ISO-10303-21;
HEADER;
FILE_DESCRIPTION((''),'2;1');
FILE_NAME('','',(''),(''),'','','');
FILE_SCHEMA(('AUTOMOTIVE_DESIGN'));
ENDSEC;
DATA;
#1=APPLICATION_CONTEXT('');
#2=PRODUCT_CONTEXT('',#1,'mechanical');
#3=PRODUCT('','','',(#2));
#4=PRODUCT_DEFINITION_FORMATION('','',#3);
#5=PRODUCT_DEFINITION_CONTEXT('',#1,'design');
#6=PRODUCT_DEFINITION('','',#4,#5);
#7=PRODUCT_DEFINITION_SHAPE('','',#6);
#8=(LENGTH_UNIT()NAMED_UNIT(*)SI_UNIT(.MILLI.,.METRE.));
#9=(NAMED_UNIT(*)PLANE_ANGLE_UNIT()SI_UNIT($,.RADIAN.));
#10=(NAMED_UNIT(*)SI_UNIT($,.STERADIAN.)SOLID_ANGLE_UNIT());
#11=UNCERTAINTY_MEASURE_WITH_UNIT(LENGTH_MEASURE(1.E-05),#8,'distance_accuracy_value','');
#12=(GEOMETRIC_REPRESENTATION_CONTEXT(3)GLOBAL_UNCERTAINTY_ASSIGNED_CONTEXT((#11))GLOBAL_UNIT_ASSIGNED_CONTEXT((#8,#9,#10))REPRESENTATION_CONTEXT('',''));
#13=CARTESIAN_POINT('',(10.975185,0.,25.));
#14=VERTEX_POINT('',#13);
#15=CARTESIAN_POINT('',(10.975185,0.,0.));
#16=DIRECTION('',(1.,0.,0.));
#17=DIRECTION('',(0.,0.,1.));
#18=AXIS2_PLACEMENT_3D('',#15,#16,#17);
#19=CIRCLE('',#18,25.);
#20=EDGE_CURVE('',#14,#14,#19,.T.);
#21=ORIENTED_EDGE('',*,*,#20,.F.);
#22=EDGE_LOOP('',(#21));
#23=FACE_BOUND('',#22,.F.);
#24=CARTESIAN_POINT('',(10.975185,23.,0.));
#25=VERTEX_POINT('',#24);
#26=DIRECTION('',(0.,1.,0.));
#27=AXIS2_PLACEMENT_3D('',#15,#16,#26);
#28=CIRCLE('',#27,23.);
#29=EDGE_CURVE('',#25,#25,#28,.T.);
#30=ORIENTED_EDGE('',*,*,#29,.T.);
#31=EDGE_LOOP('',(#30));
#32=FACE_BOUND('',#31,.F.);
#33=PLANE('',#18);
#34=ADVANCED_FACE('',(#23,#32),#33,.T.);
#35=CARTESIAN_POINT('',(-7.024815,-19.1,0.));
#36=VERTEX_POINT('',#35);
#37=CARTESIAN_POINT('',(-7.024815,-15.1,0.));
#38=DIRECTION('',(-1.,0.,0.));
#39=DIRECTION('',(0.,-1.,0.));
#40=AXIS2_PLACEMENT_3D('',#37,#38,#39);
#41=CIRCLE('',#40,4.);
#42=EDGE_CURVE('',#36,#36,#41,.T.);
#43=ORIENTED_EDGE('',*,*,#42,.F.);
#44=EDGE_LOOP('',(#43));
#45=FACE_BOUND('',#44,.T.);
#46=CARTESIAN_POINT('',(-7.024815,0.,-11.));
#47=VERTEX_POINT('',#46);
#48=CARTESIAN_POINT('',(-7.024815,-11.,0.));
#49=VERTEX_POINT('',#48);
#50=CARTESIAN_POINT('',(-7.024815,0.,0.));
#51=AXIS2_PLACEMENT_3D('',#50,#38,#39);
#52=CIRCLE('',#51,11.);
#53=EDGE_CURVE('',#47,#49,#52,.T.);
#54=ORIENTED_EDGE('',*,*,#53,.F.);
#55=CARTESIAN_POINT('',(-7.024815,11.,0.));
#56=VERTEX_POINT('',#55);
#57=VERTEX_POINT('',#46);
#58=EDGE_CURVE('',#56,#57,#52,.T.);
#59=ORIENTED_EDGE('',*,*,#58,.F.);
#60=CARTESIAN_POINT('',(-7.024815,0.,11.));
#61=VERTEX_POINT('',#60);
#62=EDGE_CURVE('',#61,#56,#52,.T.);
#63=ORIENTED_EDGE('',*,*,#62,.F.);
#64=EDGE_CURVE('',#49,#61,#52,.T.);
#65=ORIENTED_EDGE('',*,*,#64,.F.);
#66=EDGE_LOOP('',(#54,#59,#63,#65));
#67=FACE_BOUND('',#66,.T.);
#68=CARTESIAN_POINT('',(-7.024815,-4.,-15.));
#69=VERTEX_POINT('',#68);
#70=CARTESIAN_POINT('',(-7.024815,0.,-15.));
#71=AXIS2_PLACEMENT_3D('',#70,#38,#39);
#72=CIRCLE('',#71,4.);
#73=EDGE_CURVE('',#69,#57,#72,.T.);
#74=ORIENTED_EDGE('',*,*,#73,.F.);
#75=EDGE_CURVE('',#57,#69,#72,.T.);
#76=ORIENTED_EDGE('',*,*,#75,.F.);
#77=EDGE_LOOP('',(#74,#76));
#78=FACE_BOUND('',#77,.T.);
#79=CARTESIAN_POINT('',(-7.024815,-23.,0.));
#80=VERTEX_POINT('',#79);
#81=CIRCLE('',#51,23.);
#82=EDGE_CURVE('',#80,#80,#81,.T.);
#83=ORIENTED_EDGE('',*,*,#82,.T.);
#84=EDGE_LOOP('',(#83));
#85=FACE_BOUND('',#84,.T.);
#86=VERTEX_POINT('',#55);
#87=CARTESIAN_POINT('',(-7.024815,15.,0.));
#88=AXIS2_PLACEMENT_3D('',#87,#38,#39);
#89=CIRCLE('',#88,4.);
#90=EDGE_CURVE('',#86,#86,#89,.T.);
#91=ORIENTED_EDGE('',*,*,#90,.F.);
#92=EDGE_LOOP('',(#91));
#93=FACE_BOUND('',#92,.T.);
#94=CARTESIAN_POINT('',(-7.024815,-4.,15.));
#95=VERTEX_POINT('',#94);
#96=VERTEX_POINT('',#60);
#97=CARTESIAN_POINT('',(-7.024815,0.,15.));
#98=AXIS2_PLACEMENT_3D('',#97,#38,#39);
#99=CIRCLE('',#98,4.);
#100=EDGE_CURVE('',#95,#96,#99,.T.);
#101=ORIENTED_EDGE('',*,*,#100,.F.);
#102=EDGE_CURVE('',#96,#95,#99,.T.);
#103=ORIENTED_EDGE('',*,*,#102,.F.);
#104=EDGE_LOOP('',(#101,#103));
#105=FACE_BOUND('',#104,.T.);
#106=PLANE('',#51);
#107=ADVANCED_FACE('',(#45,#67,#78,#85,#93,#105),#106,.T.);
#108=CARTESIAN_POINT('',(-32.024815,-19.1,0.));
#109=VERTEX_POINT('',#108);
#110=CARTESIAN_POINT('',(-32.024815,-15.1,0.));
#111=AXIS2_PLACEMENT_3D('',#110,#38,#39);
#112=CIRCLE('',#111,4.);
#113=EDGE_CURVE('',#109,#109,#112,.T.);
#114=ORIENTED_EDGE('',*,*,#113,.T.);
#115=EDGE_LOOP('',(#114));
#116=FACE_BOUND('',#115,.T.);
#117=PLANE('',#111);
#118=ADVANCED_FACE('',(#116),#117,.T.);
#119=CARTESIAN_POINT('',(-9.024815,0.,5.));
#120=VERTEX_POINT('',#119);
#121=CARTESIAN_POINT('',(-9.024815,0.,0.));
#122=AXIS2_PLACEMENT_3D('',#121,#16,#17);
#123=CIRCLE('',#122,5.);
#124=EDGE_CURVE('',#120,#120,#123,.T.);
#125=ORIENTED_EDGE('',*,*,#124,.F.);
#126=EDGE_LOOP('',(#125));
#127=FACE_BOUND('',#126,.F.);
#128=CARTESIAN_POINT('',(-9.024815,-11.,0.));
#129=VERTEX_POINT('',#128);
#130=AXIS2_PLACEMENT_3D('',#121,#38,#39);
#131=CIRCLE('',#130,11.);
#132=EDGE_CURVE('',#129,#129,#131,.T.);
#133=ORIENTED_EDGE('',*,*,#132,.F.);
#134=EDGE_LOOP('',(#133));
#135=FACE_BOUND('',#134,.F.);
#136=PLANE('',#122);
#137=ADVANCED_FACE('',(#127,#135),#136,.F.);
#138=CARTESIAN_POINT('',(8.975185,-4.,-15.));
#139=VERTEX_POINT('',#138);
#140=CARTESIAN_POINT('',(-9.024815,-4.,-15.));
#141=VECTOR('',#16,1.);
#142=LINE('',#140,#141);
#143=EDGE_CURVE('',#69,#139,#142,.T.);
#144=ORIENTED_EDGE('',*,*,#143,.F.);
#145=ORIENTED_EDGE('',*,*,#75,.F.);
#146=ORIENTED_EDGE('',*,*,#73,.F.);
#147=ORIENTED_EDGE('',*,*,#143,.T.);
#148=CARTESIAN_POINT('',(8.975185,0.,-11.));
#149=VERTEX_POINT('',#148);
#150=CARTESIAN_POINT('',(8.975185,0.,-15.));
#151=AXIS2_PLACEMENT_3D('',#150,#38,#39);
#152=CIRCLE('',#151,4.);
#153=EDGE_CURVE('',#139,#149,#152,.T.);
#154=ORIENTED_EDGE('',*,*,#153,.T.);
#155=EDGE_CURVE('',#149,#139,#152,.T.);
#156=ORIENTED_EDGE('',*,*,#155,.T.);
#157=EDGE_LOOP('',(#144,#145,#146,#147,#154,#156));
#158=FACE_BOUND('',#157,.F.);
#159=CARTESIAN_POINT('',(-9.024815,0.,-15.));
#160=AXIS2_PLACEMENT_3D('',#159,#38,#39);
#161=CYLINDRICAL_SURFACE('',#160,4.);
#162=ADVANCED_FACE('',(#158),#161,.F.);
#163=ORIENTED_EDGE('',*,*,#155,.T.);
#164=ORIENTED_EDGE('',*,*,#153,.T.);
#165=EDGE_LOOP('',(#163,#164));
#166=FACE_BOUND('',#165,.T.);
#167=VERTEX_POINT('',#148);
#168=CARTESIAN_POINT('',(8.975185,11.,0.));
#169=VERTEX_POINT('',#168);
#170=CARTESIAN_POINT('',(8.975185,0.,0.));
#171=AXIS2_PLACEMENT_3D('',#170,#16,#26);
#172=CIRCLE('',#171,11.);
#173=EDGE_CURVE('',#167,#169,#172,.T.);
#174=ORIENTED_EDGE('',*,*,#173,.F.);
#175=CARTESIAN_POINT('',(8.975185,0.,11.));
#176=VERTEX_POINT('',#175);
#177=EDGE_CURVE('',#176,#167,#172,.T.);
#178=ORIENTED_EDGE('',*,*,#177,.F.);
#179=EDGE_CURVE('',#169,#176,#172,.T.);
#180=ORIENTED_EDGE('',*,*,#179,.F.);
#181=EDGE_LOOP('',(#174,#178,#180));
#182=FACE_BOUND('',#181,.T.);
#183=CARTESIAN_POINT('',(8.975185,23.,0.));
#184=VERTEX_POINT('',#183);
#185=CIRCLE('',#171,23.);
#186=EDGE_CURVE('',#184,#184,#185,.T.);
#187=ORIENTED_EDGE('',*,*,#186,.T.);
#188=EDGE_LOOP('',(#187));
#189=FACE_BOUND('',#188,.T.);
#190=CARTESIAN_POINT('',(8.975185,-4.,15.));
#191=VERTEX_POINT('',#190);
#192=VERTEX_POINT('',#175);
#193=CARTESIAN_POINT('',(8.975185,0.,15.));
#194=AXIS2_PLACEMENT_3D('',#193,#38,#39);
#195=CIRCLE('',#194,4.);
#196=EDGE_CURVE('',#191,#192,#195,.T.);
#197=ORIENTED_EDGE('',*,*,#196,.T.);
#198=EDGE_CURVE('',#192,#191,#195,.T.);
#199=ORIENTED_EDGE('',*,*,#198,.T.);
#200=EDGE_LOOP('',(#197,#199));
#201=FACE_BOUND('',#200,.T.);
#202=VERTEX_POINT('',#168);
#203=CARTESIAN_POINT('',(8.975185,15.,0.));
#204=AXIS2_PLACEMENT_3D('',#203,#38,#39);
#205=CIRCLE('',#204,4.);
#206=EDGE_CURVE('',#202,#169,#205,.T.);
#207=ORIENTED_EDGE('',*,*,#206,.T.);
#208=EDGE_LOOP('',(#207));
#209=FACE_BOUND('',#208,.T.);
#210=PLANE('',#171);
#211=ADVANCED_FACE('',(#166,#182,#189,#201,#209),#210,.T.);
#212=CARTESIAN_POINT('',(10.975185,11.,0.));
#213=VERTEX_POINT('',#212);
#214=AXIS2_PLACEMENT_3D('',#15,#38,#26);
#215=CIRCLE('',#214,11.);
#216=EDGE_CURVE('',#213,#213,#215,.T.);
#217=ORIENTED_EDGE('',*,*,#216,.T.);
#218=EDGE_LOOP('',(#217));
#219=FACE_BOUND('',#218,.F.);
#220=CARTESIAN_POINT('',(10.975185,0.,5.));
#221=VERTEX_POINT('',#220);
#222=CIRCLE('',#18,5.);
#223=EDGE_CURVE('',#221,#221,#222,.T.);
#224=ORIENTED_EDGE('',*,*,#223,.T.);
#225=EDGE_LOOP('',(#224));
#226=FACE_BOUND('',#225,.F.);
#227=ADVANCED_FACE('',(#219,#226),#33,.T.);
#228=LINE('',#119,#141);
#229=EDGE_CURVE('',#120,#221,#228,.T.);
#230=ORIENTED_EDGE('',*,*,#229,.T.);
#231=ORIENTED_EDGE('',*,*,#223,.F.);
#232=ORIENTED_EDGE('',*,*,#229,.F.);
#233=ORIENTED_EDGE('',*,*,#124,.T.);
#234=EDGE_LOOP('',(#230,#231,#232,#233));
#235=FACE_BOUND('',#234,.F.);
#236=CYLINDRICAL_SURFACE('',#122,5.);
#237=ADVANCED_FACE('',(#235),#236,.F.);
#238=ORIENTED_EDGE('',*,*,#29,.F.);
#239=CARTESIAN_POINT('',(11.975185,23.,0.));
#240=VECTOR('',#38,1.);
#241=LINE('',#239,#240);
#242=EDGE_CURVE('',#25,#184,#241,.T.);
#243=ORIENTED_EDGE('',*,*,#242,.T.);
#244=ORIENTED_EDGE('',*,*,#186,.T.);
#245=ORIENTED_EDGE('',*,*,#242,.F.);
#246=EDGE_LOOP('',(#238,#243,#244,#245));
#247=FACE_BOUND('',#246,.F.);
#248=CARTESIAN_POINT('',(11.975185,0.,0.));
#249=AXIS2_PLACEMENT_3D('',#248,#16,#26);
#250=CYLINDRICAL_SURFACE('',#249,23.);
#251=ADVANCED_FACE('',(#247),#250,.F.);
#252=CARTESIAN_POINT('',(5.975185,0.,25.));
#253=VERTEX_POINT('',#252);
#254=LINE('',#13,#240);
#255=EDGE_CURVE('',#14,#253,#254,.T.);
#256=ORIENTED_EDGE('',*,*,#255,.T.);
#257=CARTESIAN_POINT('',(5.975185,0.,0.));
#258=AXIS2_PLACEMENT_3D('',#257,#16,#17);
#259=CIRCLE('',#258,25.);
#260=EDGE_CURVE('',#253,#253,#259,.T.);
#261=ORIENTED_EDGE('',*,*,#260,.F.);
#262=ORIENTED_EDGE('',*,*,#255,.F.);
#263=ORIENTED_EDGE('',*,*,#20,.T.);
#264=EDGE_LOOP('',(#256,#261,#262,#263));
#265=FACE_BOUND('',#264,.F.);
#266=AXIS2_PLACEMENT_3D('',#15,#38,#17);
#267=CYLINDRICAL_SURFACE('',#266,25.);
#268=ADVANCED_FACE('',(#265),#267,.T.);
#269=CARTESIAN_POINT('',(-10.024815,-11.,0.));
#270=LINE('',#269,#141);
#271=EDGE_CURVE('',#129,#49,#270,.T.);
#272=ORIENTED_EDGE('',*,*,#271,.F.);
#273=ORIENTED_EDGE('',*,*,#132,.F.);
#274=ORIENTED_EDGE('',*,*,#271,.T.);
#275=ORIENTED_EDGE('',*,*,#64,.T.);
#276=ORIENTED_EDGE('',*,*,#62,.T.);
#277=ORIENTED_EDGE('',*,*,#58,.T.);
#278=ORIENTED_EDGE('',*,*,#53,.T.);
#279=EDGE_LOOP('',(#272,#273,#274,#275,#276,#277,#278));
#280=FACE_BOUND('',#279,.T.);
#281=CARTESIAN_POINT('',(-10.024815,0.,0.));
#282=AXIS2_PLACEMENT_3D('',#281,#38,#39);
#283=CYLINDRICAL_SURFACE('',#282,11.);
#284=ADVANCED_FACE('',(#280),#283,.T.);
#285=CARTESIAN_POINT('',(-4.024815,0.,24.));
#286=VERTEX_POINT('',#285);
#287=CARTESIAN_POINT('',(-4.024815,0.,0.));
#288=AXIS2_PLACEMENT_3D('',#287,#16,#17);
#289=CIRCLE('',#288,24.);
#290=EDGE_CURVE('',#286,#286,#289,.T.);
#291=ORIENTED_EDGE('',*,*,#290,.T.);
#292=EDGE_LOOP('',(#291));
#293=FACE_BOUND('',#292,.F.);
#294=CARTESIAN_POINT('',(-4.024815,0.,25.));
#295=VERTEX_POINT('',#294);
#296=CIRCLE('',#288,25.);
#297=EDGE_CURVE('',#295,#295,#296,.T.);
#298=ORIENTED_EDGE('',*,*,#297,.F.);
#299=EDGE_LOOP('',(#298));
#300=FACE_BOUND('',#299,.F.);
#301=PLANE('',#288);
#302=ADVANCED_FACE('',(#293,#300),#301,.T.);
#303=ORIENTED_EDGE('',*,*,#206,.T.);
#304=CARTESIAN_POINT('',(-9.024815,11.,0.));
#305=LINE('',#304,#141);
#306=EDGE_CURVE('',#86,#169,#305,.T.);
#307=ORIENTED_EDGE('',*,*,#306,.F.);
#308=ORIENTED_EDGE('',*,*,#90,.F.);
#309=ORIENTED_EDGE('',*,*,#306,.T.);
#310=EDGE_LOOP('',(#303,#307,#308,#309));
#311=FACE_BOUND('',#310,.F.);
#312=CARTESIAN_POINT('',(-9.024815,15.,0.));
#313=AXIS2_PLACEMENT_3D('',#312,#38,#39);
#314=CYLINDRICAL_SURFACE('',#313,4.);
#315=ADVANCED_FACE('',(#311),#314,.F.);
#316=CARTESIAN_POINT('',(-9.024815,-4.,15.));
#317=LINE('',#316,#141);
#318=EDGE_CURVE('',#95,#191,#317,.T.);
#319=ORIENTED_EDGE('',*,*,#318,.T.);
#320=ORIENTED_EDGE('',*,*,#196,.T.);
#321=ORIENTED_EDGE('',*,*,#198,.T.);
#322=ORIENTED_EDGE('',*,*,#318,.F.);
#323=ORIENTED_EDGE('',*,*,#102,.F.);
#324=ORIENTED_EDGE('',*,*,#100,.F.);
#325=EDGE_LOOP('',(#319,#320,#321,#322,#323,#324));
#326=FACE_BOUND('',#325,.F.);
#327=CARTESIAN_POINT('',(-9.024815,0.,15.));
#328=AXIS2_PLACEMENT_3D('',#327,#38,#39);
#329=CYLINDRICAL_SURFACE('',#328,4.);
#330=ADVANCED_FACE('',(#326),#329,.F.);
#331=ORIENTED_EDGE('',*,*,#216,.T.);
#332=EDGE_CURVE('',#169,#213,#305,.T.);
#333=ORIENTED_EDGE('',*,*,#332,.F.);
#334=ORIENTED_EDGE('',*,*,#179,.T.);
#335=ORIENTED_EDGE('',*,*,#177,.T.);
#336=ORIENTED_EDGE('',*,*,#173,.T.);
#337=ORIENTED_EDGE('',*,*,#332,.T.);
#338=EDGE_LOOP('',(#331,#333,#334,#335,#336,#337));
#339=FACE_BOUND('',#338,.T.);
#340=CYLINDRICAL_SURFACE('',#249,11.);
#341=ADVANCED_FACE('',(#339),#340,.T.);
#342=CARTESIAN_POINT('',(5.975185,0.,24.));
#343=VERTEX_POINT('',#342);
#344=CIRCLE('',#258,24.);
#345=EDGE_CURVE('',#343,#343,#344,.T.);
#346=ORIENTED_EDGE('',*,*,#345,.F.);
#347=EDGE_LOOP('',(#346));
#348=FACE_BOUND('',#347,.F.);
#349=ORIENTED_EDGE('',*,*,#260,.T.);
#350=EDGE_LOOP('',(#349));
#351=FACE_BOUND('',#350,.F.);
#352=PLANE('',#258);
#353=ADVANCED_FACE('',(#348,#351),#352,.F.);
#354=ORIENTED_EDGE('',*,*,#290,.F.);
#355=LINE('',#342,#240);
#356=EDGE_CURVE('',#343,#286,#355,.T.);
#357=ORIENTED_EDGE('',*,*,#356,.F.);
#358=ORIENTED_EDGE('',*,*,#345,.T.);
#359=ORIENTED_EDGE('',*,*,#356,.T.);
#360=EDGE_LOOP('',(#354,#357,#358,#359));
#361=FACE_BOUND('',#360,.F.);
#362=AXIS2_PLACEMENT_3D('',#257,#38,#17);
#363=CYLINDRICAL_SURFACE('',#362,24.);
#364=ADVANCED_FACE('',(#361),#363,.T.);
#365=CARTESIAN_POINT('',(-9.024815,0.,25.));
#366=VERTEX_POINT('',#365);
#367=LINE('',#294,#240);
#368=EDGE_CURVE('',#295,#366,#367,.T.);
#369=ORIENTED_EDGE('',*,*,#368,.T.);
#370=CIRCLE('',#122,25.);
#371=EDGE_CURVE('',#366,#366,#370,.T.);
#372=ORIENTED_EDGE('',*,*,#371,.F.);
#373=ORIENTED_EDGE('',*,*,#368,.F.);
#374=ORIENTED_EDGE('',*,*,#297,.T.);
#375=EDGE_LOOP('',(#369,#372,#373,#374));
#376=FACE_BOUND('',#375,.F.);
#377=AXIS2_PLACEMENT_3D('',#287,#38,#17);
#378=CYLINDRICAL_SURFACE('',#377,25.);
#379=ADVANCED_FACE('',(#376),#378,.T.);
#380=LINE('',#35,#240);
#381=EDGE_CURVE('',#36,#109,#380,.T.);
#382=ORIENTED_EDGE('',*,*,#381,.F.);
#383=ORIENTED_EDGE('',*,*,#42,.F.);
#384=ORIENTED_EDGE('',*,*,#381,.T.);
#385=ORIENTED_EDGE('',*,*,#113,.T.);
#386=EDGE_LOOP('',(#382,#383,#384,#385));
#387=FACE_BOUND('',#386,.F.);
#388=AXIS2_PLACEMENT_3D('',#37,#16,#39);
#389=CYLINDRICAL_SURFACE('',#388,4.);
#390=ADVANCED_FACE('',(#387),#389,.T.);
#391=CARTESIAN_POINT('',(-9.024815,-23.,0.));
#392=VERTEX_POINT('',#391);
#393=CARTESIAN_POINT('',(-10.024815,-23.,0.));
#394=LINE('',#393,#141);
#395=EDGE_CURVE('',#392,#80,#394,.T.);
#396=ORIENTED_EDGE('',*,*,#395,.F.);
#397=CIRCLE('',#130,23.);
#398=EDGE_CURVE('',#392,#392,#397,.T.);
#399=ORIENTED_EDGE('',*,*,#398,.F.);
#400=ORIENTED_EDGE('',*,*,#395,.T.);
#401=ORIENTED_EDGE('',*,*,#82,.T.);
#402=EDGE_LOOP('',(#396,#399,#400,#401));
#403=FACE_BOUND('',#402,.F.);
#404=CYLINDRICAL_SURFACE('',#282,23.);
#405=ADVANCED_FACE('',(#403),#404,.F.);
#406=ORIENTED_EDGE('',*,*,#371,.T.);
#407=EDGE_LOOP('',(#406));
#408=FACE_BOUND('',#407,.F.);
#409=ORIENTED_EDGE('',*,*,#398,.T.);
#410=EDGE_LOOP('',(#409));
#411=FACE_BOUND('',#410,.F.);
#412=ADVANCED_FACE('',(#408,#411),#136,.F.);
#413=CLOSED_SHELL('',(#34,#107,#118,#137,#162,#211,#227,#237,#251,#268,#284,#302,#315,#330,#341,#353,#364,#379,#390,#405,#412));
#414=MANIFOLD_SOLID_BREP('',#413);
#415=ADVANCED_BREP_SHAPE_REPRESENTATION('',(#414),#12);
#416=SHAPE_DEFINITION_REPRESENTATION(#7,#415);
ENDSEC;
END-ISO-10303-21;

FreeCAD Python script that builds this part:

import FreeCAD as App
import Part
import Sketcher

doc = App.newDocument("Part")
body = doc.addObject("PartDesign::Body", "Body")

# Sketch on XZ plane
sketch1 = body.newObject("Sketcher::SketchObject", "Sketch")
sketch1.AttachmentSupport = (doc.getObject("XZ_Plane"), [""])
sketch1.MapMode = "FlatFace"
sketch1.addGeometry([
    Part.LineSegment(App.Vector(11, 5, 0), App.Vector(11, 25, 0)),  # 0
    Part.LineSegment(App.Vector(11, 25, 0), App.Vector(6, 25, 0)),  # 1
    Part.LineSegment(App.Vector(6, 25, 0), App.Vector(6, 24, 0)),  # 2
    Part.LineSegment(App.Vector(6, 24, 0), App.Vector(-4, 24, 0)),  # 3
    Part.LineSegment(App.Vector(-4, 24, 0), App.Vector(-4, 25, 0)),  # 4
    Part.LineSegment(App.Vector(-4, 25, 0), App.Vector(-9, 25, 0)),  # 5
    Part.LineSegment(App.Vector(-9, 25, 0), App.Vector(-9, 5, 0)),  # 6
    Part.LineSegment(App.Vector(-9, 5, 0), App.Vector(11, 5, 0)),  # 7
], False)
sketch1.addConstraint([
    Sketcher.Constraint("Coincident", 0, 2, 1, 1),
    Sketcher.Constraint("Coincident", 1, 2, 2, 1),
    Sketcher.Constraint("Coincident", 2, 2, 3, 1),
    Sketcher.Constraint("Coincident", 3, 2, 4, 1),
    Sketcher.Constraint("Coincident", 4, 2, 5, 1),
    Sketcher.Constraint("Coincident", 5, 2, 6, 1),
    Sketcher.Constraint("Coincident", 6, 2, 7, 1),
    Sketcher.Constraint("Coincident", 7, 2, 0, 1),
    Sketcher.Constraint("Vertical", 0),
    Sketcher.Constraint("Horizontal", 1),
    Sketcher.Constraint("Vertical", 2),
    Sketcher.Constraint("Horizontal", 3),
    Sketcher.Constraint("Vertical", 4),
    Sketcher.Constraint("Horizontal", 5),
    Sketcher.Constraint("Vertical", 6),
    Sketcher.Constraint("Horizontal", 7),
    Sketcher.Constraint("Horizontal", 1, 2, 4, 2),
    Sketcher.Constraint("Equal", 1, 5),
    Sketcher.Constraint("Equal", 7, 0),
    Sketcher.Constraint("DistanceX", 1, 2, 1, 1, 5.0),
    Sketcher.Constraint("DistanceX", 3, 2, 3, 1, 10.0),
    Sketcher.Constraint("DistanceY", 2, 2, 2, 1, 1.0),
    Sketcher.Constraint("DistanceY", -1, 1, 0, 2, 25.0),
    Sketcher.Constraint("DistanceX", -1, 1, 0, 2, 10.975185),
])
revolution = body.newObject("PartDesign::Revolution", "Revolution")
revolution.Profile = sketch1
revolution.ReferenceAxis = (sketch1, ["H_Axis"])
revolution.Angle = 360

# Sketch on YZ plane
sketch2 = body.newObject("Sketcher::SketchObject", "Sketch001")
sketch2.AttachmentSupport = (doc.getObject("YZ_Plane"), [""])
sketch2.MapMode = "FlatFace"
sketch2.AttachmentOffset = App.Placement(App.Vector(0, 0, -9.024815), App.Rotation())
sketch2.addGeometry([
    Part.Circle(App.Vector(0, 15, 0), App.Vector(0, 0, 1), 4),
    Part.Circle(App.Vector(15, 0, 0), App.Vector(0, 0, 1), 4),
    Part.Circle(App.Vector(0, -15, 0), App.Vector(0, 0, 1), 4),
], False)
sketch2.addConstraint([
    Sketcher.Constraint("Equal", 0, 1),
    Sketcher.Constraint("Equal", 1, 2),
    Sketcher.Constraint("Symmetric", 0, 3, 2, 3, -1, 1),
    Sketcher.Constraint("PointOnObject", 0, 3, -2),
    Sketcher.Constraint("PointOnObject", 1, 3, -1),
    Sketcher.Constraint("Diameter", 0, 8.0),
    Sketcher.Constraint("DistanceY", -1, 1, 0, 3, 15.0),
    Sketcher.Constraint("DistanceX", -1, 1, 1, 3, 15.0),
])
pocket1 = body.newObject("PartDesign::Pocket", "Pocket")
pocket1.Profile = sketch2
pocket1.Type = "ThroughAll"
pocket1.Reversed = True

# Sketch on YZ plane
sketch3 = body.newObject("Sketcher::SketchObject", "Sketch002")
sketch3.AttachmentSupport = (doc.getObject("YZ_Plane"), [""])
sketch3.MapMode = "FlatFace"
sketch3.AttachmentOffset = App.Placement(App.Vector(0, 0, -10.024815), App.Rotation())
sketch3.addGeometry([
    Part.Circle(App.Vector(0, 0, 0), App.Vector(0, 0, 1), 23),
    Part.Circle(App.Vector(0, 0, 0), App.Vector(0, 0, 1), 11),
], False)
sketch3.addConstraint([
    Sketcher.Constraint("Coincident", 0, 3, -1, 1),
    Sketcher.Constraint("Coincident", 1, 3, -1, 1),
    Sketcher.Constraint("Diameter", 0, 46.0),
    Sketcher.Constraint("Diameter", 1, 22.0),
])
pocket2 = body.newObject("PartDesign::Pocket", "Pocket001")
pocket2.Profile = sketch3
pocket2.Length = 3
pocket2.Reversed = True

# Sketch on YZ plane
sketch4 = body.newObject("Sketcher::SketchObject", "Sketch003")
sketch4.AttachmentSupport = (doc.getObject("YZ_Plane"), [""])
sketch4.MapMode = "FlatFace"
sketch4.AttachmentOffset = App.Placement(App.Vector(0, 0, 11.975185), App.Rotation())
sketch4.addGeometry([
    Part.Circle(App.Vector(0, 0, 0), App.Vector(0, 0, 1), 23),
    Part.Circle(App.Vector(0, 0, 0), App.Vector(0, 0, 1), 11),
], False)
sketch4.addConstraint([
    Sketcher.Constraint("Coincident", 0, 3, -1, 1),
    Sketcher.Constraint("Coincident", 1, 3, -1, 1),
    Sketcher.Constraint("Diameter", 0, 46.0),
    Sketcher.Constraint("Diameter", 1, 22.0),
])
pocket3 = body.newObject("PartDesign::Pocket", "Pocket002")
pocket3.Profile = sketch4
pocket3.Length = 3

# Sketch on YZ plane
sketch5 = body.newObject("Sketcher::SketchObject", "Sketch004")
sketch5.AttachmentSupport = (doc.getObject("YZ_Plane"), [""])
sketch5.MapMode = "FlatFace"
sketch5.AttachmentOffset = App.Placement(App.Vector(0, 0, -7.024815), App.Rotation())
sketch5.addGeometry(Part.Circle(App.Vector(-15.1, 0, 0), App.Vector(0, 0, 1), 4), False)
sketch5.addConstraint([
    Sketcher.Constraint("PointOnObject", 0, 3, -1),
    Sketcher.Constraint("Diameter", 0, 8.0),
    Sketcher.Constraint("DistanceX", 0, 3, -1, 1, 15.1),
])
pad1 = body.newObject("PartDesign::Pad", "Pad")
pad1.Profile = sketch5
pad1.Length = 25
pad1.Reversed = True

doc.recompute()
